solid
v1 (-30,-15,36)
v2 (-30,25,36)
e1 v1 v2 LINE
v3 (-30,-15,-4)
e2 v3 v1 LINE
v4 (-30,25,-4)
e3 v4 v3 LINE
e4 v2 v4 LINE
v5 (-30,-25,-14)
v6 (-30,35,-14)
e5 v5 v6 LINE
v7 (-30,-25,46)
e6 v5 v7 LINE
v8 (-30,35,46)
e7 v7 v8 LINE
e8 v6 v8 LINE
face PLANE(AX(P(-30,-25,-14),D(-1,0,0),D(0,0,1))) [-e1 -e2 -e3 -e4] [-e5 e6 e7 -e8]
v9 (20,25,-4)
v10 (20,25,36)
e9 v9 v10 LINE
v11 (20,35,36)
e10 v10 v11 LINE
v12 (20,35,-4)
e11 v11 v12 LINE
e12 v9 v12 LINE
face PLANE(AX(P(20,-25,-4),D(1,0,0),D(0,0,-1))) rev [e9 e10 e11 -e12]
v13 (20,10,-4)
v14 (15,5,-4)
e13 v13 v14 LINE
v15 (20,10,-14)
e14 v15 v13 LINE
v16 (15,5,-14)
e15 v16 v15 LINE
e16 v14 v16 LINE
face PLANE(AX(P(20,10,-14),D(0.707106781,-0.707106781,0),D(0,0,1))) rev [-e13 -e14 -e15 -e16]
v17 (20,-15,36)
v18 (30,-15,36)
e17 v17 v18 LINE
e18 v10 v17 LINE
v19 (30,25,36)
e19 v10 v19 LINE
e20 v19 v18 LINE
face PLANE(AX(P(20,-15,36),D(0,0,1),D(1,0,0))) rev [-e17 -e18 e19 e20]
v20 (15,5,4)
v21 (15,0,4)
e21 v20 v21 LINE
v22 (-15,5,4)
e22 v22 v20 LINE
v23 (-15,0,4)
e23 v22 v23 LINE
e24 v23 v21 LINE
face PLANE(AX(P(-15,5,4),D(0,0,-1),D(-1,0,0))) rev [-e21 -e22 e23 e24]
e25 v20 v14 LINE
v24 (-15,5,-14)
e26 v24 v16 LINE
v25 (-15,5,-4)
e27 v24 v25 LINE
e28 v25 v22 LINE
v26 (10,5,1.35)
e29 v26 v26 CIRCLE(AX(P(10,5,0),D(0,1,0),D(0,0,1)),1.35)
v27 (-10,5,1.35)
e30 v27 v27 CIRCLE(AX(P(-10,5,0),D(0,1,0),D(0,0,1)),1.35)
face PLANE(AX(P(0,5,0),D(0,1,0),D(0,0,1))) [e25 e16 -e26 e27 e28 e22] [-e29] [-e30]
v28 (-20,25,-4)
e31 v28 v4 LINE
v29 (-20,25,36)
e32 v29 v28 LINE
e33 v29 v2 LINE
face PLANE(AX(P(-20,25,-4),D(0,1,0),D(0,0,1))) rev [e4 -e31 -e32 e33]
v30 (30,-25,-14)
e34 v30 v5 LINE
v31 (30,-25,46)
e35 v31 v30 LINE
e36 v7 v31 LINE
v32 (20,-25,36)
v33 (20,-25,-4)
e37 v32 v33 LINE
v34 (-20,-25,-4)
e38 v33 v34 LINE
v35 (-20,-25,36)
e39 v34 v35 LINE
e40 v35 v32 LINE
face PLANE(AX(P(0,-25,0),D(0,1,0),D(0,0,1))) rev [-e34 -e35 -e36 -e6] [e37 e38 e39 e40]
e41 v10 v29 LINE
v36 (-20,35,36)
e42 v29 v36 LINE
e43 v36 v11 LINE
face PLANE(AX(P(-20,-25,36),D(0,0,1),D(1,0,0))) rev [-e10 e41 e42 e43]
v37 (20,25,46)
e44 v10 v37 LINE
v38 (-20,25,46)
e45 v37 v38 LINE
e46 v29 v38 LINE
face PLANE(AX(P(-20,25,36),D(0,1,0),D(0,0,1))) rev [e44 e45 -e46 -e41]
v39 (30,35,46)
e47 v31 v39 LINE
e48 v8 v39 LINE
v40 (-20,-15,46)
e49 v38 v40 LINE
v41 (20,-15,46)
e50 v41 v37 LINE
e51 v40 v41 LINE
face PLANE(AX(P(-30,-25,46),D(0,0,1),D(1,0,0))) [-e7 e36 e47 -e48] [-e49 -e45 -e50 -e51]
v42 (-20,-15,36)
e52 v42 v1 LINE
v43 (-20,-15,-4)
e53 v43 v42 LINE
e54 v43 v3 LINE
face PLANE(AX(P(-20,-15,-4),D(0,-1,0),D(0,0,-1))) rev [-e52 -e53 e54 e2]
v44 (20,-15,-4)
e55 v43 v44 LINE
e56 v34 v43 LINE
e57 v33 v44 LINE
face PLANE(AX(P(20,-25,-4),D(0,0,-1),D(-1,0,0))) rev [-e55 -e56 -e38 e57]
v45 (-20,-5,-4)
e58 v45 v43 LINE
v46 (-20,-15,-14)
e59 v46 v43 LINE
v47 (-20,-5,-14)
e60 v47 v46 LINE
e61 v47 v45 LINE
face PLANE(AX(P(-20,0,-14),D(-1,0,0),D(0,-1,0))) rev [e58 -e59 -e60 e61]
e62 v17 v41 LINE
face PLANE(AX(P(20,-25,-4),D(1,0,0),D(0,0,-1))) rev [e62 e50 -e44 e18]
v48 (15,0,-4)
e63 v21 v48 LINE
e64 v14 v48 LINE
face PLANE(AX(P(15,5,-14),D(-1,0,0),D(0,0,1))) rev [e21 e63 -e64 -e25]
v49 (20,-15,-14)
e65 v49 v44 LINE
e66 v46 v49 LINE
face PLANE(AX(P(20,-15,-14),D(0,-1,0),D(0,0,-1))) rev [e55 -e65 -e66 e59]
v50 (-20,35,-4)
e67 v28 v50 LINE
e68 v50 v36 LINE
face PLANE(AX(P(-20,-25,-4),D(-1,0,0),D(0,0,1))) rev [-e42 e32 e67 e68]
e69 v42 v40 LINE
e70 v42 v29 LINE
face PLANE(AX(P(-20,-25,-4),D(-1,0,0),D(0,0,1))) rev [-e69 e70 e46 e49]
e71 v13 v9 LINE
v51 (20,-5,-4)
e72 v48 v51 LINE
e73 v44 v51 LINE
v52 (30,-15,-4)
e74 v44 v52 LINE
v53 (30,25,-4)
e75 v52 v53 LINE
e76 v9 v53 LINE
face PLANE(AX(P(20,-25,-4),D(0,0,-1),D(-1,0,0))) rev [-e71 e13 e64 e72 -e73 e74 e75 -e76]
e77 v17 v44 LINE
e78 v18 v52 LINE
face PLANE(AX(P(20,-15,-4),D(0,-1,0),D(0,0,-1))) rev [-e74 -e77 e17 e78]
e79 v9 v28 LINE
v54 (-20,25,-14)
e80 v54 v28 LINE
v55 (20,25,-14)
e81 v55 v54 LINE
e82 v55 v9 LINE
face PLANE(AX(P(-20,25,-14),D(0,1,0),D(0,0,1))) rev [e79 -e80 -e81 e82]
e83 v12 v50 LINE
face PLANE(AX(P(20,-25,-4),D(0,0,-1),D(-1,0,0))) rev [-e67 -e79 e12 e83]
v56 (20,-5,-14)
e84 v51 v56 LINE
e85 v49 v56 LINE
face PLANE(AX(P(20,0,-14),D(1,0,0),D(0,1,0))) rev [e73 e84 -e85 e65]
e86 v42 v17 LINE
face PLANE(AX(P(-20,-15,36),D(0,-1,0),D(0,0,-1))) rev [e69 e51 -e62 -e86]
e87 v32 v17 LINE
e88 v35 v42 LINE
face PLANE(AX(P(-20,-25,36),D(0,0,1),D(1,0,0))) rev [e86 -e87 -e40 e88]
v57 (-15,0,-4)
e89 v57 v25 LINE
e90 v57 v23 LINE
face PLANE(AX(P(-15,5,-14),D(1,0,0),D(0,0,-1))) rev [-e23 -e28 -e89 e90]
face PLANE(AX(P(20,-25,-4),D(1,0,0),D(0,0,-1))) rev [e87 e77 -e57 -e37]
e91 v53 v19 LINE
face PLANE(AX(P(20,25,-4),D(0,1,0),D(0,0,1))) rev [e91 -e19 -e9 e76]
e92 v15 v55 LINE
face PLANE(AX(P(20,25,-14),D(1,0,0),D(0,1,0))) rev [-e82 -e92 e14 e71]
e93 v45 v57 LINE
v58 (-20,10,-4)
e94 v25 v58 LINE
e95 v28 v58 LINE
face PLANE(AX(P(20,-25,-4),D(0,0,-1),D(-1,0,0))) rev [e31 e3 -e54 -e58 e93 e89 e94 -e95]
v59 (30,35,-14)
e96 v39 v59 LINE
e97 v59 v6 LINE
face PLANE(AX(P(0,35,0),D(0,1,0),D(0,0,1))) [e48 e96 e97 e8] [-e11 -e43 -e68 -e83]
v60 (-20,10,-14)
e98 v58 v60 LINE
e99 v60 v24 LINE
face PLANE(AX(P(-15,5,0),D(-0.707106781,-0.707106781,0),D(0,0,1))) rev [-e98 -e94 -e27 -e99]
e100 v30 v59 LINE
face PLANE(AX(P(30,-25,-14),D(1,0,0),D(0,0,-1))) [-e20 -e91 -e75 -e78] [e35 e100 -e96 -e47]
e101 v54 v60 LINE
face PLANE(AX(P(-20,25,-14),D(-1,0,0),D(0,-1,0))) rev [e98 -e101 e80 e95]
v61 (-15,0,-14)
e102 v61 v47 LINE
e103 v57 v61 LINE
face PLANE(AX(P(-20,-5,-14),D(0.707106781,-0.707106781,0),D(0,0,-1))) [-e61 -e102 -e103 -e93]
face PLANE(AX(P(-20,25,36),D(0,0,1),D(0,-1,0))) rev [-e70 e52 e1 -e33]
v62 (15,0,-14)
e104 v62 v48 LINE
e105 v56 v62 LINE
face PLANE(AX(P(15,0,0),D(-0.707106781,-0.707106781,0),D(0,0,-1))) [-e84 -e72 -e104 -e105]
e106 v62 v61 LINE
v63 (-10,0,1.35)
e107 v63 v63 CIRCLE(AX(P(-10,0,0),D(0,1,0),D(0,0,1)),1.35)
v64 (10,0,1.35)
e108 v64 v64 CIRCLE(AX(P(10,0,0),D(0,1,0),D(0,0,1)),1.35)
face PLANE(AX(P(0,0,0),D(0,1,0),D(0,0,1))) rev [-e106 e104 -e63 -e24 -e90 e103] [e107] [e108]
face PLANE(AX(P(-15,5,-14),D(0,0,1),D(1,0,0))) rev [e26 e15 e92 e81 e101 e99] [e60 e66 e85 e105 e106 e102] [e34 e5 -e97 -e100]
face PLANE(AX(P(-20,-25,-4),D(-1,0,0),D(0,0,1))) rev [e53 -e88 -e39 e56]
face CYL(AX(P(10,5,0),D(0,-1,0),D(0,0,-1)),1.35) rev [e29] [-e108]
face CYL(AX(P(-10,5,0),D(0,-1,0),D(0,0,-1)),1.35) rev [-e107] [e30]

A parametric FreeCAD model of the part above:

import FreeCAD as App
import Part
import Sketcher
Q = App.Units.Quantity


def edges_at(feature, points):
    """Names of the edges that pass closest to the given points."""
    edges = feature.Shape.Edges
    near = lambda p: min(range(len(edges)), key=lambda i: edges[i].distToShape(Part.Vertex(*p))[0])
    return sorted({f"Edge{near(p) + 1}" for p in points})

doc = App.newDocument("Part")
params = doc.addObject("Spreadsheet::Sheet", "Params")
for row, (alias, value) in enumerate([
    ("sketch1_diameter", "2.7 mm"),
    ("sketch1_width", "30 mm"),
    ("sketch1_height", "18 mm"),
    ("pad1_length", "5 mm"),
    ("sketch2_width", "60 mm"),
    ("sketch2_width2", "40 mm"),
    ("pad2_length", "30 mm"),
    ("pad2_length2", "30 mm"),
    ("sketch3_width", "40 mm"),
    ("pocket1_length", "10 mm"),
    ("sketch4_width", "40 mm"),
    ("pocket2_length", "10 mm"),
    ("sketch5_width", "40 mm"),
    ("pocket3_length", "10 mm"),
    ("sketch6_width", "40 mm"),
    ("sketch6_height", "20 mm"),
    ("sketch6_height2", "15 mm"),
    ("pocket4_length", "10 mm"),
    ("chamfer_size", "5 mm"),
], start=1):
    params.set(f"A{row}", alias)
    params.set(f"B{row}", "=" + value)
    params.setAlias(f"B{row}", alias)

body = doc.addObject("PartDesign::Body", "Body")

# Sketch on XZ plane
sketch1 = body.newObject("Sketcher::SketchObject", "Sketch")
sketch1.AttachmentSupport = (doc.getObject("XZ_Plane"), [""])
sketch1.MapMode = "FlatFace"
sketch1.addGeometry(Part.LineSegment(App.Vector(-15, -14, 0), App.Vector(-15, 4, 0)), False)
sketch1.addGeometry(Part.LineSegment(App.Vector(-15, 4, 0), App.Vector(15, 4, 0)), False)
sketch1.addGeometry(Part.LineSegment(App.Vector(15, 4, 0), App.Vector(15, -14, 0)), False)
sketch1.addGeometry(Part.LineSegment(App.Vector(15, -14, 0), App.Vector(-15, -14, 0)), False)
sketch1.addGeometry(Part.Circle(App.Vector(-10, 0, 0), App.Vector(0, 0, 1), 1.4), False)
sketch1.addGeometry(Part.Circle(App.Vector(10, 0, 0), App.Vector(0, 0, 1), 1.4), False)
sketch1.addConstraint(Sketcher.Constraint("Coincident", 0, 2, 1, 1))
sketch1.addConstraint(Sketcher.Constraint("Coincident", 1, 2, 2, 1))
sketch1.addConstraint(Sketcher.Constraint("Coincident", 2, 2, 3, 1))
sketch1.addConstraint(Sketcher.Constraint("Coincident", 3, 2, 0, 1))
sketch1.addConstraint(Sketcher.Constraint("Vertical", 0))
sketch1.addConstraint(Sketcher.Constraint("Horizontal", 1))
sketch1.addConstraint(Sketcher.Constraint("Vertical", 2))
sketch1.addConstraint(Sketcher.Constraint("Horizontal", 3))
sketch1.addConstraint(Sketcher.Constraint("Equal", 4, 5))
sketch1.addConstraint(Sketcher.Constraint("Symmetric", 4, 3, 5, 3, -1, 1))
sketch1.addConstraint(Sketcher.Constraint("PointOnObject", 4, 3, -1))
sketch1.addConstraint(Sketcher.Constraint("Diameter", 4, Q("2.7 mm")))
sketch1.addConstraint(Sketcher.Constraint("DistanceX", 1, 1, 1, 2, Q("30 mm")))
sketch1.addConstraint(Sketcher.Constraint("DistanceY", 0, 1, 0, 2, Q("18 mm")))
sketch1.addConstraint(Sketcher.Constraint("DistanceX", 4, 3, -1, 1, Q("10 mm")))
sketch1.addConstraint(Sketcher.Constraint("DistanceX", 0, 2, -1, 1, Q("15 mm")))
sketch1.addConstraint(Sketcher.Constraint("DistanceY", -1, 1, 0, 2, Q("4 mm")))
sketch1.setExpression("Constraints[11]", "Params.sketch1_diameter")
sketch1.setExpression("Constraints[12]", "Params.sketch1_width")
sketch1.setExpression("Constraints[13]", "Params.sketch1_height")
pad1 = body.newObject("PartDesign::Pad", "Pad")
pad1.Profile = sketch1
pad1.setExpression("Length", "Params.pad1_length")
pad1.Reversed = True

# Sketch on XZ plane
sketch2 = body.newObject("Sketcher::SketchObject", "Sketch001")
sketch2.AttachmentSupport = (doc.getObject("XZ_Plane"), [""])
sketch2.MapMode = "FlatFace"
sketch2.AttachmentOffset = App.Placement(App.Vector(0, 0, -5), App.Rotation())
sketch2.addGeometry(Part.LineSegment(App.Vector(-30, -14, 0), App.Vector(-30, 46, 0)), False)
sketch2.addGeometry(Part.LineSegment(App.Vector(-30, 46, 0), App.Vector(30, 46, 0)), False)
sketch2.addGeometry(Part.LineSegment(App.Vector(30, 46, 0), App.Vector(30, -14, 0)), False)
sketch2.addGeometry(Part.LineSegment(App.Vector(30, -14, 0), App.Vector(-30, -14, 0)), False)
sketch2.addGeometry(Part.LineSegment(App.Vector(20, 36, 0), App.Vector(-20, 36, 0)), False)
sketch2.addGeometry(Part.LineSegment(App.Vector(-20, 36, 0), App.Vector(-20, -4, 0)), False)
sketch2.addGeometry(Part.LineSegment(App.Vector(-20, -4, 0), App.Vector(20, -4, 0)), False)
sketch2.addGeometry(Part.LineSegment(App.Vector(20, -4, 0), App.Vector(20, 36, 0)), False)
sketch2.addConstraint(Sketcher.Constraint("Coincident", 0, 2, 1, 1))
sketch2.addConstraint(Sketcher.Constraint("Coincident", 1, 2, 2, 1))
sketch2.addConstraint(Sketcher.Constraint("Coincident", 2, 2, 3, 1))
sketch2.addConstraint(Sketcher.Constraint("Coincident", 3, 2, 0, 1))
sketch2.addConstraint(Sketcher.Constraint("Coincident", 4, 2, 5, 1))
sketch2.addConstraint(Sketcher.Constraint("Coincident", 5, 2, 6, 1))
sketch2.addConstraint(Sketcher.Constraint("Coincident", 6, 2, 7, 1))
sketch2.addConstraint(Sketcher.Constraint("Coincident", 7, 2, 4, 1))
sketch2.addConstraint(Sketcher.Constraint("Vertical", 0))
sketch2.addConstraint(Sketcher.Constraint("Horizontal", 1))
sketch2.addConstraint(Sketcher.Constraint("Vertical", 2))
sketch2.addConstraint(Sketcher.Constraint("Horizontal", 3))
sketch2.addConstraint(Sketcher.Constraint("Horizontal", 4))
sketch2.addConstraint(Sketcher.Constraint("Vertical", 5))
sketch2.addConstraint(Sketcher.Constraint("Horizontal", 6))
sketch2.addConstraint(Sketcher.Constraint("Vertical", 7))
sketch2.addConstraint(Sketcher.Constraint("Equal", 3, 0))
sketch2.addConstraint(Sketcher.Constraint("Equal", 6, 5))
sketch2.addConstraint(Sketcher.Constraint("DistanceX", 1, 1, 1, 2, Q("60 mm")))
sketch2.addConstraint(Sketcher.Constraint("DistanceX", 4, 2, 4, 1, Q("40 mm")))
sketch2.addConstraint(Sketcher.Constraint("DistanceX", 0, 2, -1, 1, Q("30 mm")))
sketch2.addConstraint(Sketcher.Constraint("DistanceY", -1, 1, 0, 2, Q("46 mm")))
sketch2.addConstraint(Sketcher.Constraint("DistanceX", 4, 2, -1, 1, Q("20 mm")))
sketch2.addConstraint(Sketcher.Constraint("DistanceY", -1, 1, 4, 2, Q("36 mm")))
sketch2.setExpression("Constraints[18]", "Params.sketch2_width")
sketch2.setExpression("Constraints[19]", "Params.sketch2_width2")
pad2 = body.newObject("PartDesign::Pad", "Pad001")
pad2.Profile = sketch2
pad2.Type = "TwoLengths"
pad2.setExpression("Length", "Params.pad2_length")
pad2.setExpression("Length2", "Params.pad2_length2")
pad2.Reversed = True

# Sketch on XY plane
sketch3 = body.newObject("Sketcher::SketchObject", "Sketch002")
sketch3.AttachmentSupport = (doc.getObject("XY_Plane"), [""])
sketch3.MapMode = "FlatFace"
sketch3.AttachmentOffset = App.Placement(App.Vector(0, 0, 46), App.Rotation())
sketch3.addGeometry(Part.LineSegment(App.Vector(-20, 25, 0), App.Vector(-20, -15, 0)), False)
sketch3.addGeometry(Part.LineSegment(App.Vector(-20, -15, 0), App.Vector(20, -15, 0)), False)
sketch3.addGeometry(Part.LineSegment(App.Vector(20, -15, 0), App.Vector(20, 25, 0)), False)
sketch3.addGeometry(Part.LineSegment(App.Vector(20, 25, 0), App.Vector(-20, 25, 0)), False)
sketch3.addConstraint(Sketcher.Constraint("Coincident", 0, 2, 1, 1))
sketch3.addConstraint(Sketcher.Constraint("Coincident", 1, 2, 2, 1))
sketch3.addConstraint(Sketcher.Constraint("Coincident", 2, 2, 3, 1))
sketch3.addConstraint(Sketcher.Constraint("Coincident", 3, 2, 0, 1))
sketch3.addConstraint(Sketcher.Constraint("Vertical", 0))
sketch3.addConstraint(Sketcher.Constraint("Horizontal", 1))
sketch3.addConstraint(Sketcher.Constraint("Vertical", 2))
sketch3.addConstraint(Sketcher.Constraint("Horizontal", 3))
sketch3.addConstraint(Sketcher.Constraint("Equal", 3, 0))
sketch3.addConstraint(Sketcher.Constraint("DistanceX", 1, 1, 1, 2, Q("40 mm")))
sketch3.addConstraint(Sketcher.Constraint("DistanceX", 0, 2, -1, 1, Q("20 mm")))
sketch3.addConstraint(Sketcher.Constraint("DistanceY", 0, 2, -1, 1, Q("15 mm")))
sketch3.setExpression("Constraints[9]", "Params.sketch3_width")
pocket1 = body.newObject("PartDesign::Pocket", "Pocket")
pocket1.Profile = sketch3
pocket1.setExpression("Length", "Params.pocket1_length")

# Sketch on YZ plane
sketch4 = body.newObject("Sketcher::SketchObject", "Sketch003")
sketch4.AttachmentSupport = (doc.getObject("YZ_Plane"), [""])
sketch4.MapMode = "FlatFace"
sketch4.AttachmentOffset = App.Placement(App.Vector(0, 0, -30), App.Rotation())
sketch4.addGeometry(Part.LineSegment(App.Vector(25, -4, 0), App.Vector(-15, -4, 0)), False)
sketch4.addGeometry(Part.LineSegment(App.Vector(-15, -4, 0), App.Vector(-15, 36, 0)), False)
sketch4.addGeometry(Part.LineSegment(App.Vector(-15, 36, 0), App.Vector(25, 36, 0)), False)
sketch4.addGeometry(Part.LineSegment(App.Vector(25, 36, 0), App.Vector(25, -4, 0)), False)
sketch4.addConstraint(Sketcher.Constraint("Coincident", 0, 2, 1, 1))
sketch4.addConstraint(Sketcher.Constraint("Coincident", 1, 2, 2, 1))
sketch4.addConstraint(Sketcher.Constraint("Coincident", 2, 2, 3, 1))
sketch4.addConstraint(Sketcher.Constraint("Coincident", 3, 2, 0, 1))
sketch4.addConstraint(Sketcher.Constraint("Horizontal", 0))
sketch4.addConstraint(Sketcher.Constraint("Vertical", 1))
sketch4.addConstraint(Sketcher.Constraint("Horizontal", 2))
sketch4.addConstraint(Sketcher.Constraint("Vertical", 3))
sketch4.addConstraint(Sketcher.Constraint("Equal", 2, 1))
sketch4.addConstraint(Sketcher.Constraint("DistanceX", 0, 2, 0, 1, Q("40 mm")))
sketch4.addConstraint(Sketcher.Constraint("DistanceX", 0, 2, -1, 1, Q("15 mm")))
sketch4.addConstraint(Sketcher.Constraint("DistanceY", 0, 2, -1, 1, Q("4 mm")))
sketch4.setExpression("Constraints[9]", "Params.sketch4_width")
pocket2 = body.newObject("PartDesign::Pocket", "Pocket001")
pocket2.Profile = sketch4
pocket2.setExpression("Length", "Params.pocket2_length")
pocket2.Reversed = True

# Sketch on YZ plane
sketch5 = body.newObject("Sketcher::SketchObject", "Sketch004")
sketch5.AttachmentSupport = (doc.getObject("YZ_Plane"), [""])
sketch5.MapMode = "FlatFace"
sketch5.AttachmentOffset = App.Placement(App.Vector(0, 0, 30), App.Rotation())
sketch5.addGeometry(Part.LineSegment(App.Vector(25, 36, 0), App.Vector(-15, 36, 0)), False)
sketch5.addGeometry(Part.LineSegment(App.Vector(-15, 36, 0), App.Vector(-15, -4, 0)), False)
sketch5.addGeometry(Part.LineSegment(App.Vector(-15, -4, 0), App.Vector(25, -4, 0)), False)
sketch5.addGeometry(Part.LineSegment(App.Vector(25, -4, 0), App.Vector(25, 36, 0)), False)
sketch5.addConstraint(Sketcher.Constraint("Coincident", 0, 2, 1, 1))
sketch5.addConstraint(Sketcher.Constraint("Coincident", 1, 2, 2, 1))
sketch5.addConstraint(Sketcher.Constraint("Coincident", 2, 2, 3, 1))
sketch5.addConstraint(Sketcher.Constraint("Coincident", 3, 2, 0, 1))
sketch5.addConstraint(Sketcher.Constraint("Horizontal", 0))
sketch5.addConstraint(Sketcher.Constraint("Vertical", 1))
sketch5.addConstraint(Sketcher.Constraint("Horizontal", 2))
sketch5.addConstraint(Sketcher.Constraint("Vertical", 3))
sketch5.addConstraint(Sketcher.Constraint("Equal", 2, 1))
sketch5.addConstraint(Sketcher.Constraint("DistanceX", 0, 2, 0, 1, Q("40 mm")))
sketch5.addConstraint(Sketcher.Constraint("DistanceX", 0, 2, -1, 1, Q("15 mm")))
sketch5.addConstraint(Sketcher.Constraint("DistanceY", -1, 1, 0, 2, Q("36 mm")))
sketch5.setExpression("Constraints[9]", "Params.sketch5_width")
pocket3 = body.newObject("PartDesign::Pocket", "Pocket002")
pocket3.Profile = sketch5
pocket3.setExpression("Length", "Params.pocket3_length")

# Sketch on XY plane
sketch6 = body.newObject("Sketcher::SketchObject", "Sketch005")
sketch6.AttachmentSupport = (doc.getObject("XY_Plane"), [""])
sketch6.MapMode = "FlatFace"
sketch6.AttachmentOffset = App.Placement(App.Vector(0, 0, -4), App.Rotation())
sketch6.addGeometry(Part.LineSegment(App.Vector(-20, 25, 0), App.Vector(-20, 5, 0)), False)
sketch6.addGeometry(Part.LineSegment(App.Vector(-20, 5, 0), App.Vector(20, 5, 0)), False)
sketch6.addGeometry(Part.LineSegment(App.Vector(20, 5, 0), App.Vector(20, 25, 0)), False)
sketch6.addGeometry(Part.LineSegment(App.Vector(20, 25, 0), App.Vector(-20, 25, 0)), False)
sketch6.addGeometry(Part.LineSegment(App.Vector(-20, 0, 0), App.Vector(-20, -15, 0)), False)
sketch6.addGeometry(Part.LineSegment(App.Vector(-20, -15, 0), App.Vector(20, -15, 0)), False)
sketch6.addGeometry(Part.LineSegment(App.Vector(20, -15, 0), App.Vector(20, 0, 0)), False)
sketch6.addGeometry(Part.LineSegment(App.Vector(20, 0, 0), App.Vector(-20, 0, 0)), False)
sketch6.addConstraint(Sketcher.Constraint("Coincident", 0, 2, 1, 1))
sketch6.addConstraint(Sketcher.Constraint("Coincident", 1, 2, 2, 1))
sketch6.addConstraint(Sketcher.Constraint("Coincident", 2, 2, 3, 1))
sketch6.addConstraint(Sketcher.Constraint("Coincident", 3, 2, 0, 1))
sketch6.addConstraint(Sketcher.Constraint("Coincident", 4, 2, 5, 1))
sketch6.addConstraint(Sketcher.Constraint("Coincident", 5, 2, 6, 1))
sketch6.addConstraint(Sketcher.Constraint("Coincident", 6, 2, 7, 1))
sketch6.addConstraint(Sketcher.Constraint("Coincident", 7, 2, 4, 1))
sketch6.addConstraint(Sketcher.Constraint("Vertical", 0))
sketch6.addConstraint(Sketcher.Constraint("Horizontal", 1))
sketch6.addConstraint(Sketcher.Constraint("Vertical", 2))
sketch6.addConstraint(Sketcher.Constraint("Horizontal", 3))
sketch6.addConstraint(Sketcher.Constraint("Vertical", 4))
sketch6.addConstraint(Sketcher.Constraint("Horizontal", 5))
sketch6.addConstraint(Sketcher.Constraint("Vertical", 6))
sketch6.addConstraint(Sketcher.Constraint("Horizontal", 7))
sketch6.addConstraint(Sketcher.Constraint("Symmetric", 6, 2, 7, 2, -1, 1))
sketch6.addConstraint(Sketcher.Constraint("Vertical", 3, 2, 4, 2))
sketch6.addConstraint(Sketcher.Constraint("Vertical", 2, 2, 5, 2))
sketch6.addConstraint(Sketcher.Constraint("DistanceX", 1, 1, 1, 2, Q("40 mm")))
sketch6.addConstraint(Sketcher.Constraint("DistanceY", 0, 2, 0, 1, Q("20 mm")))
sketch6.addConstraint(Sketcher.Constraint("DistanceY", 4, 2, 4, 1, Q("15 mm")))
sketch6.addConstraint(Sketcher.Constraint("DistanceY", -1, 1, 0, 2, Q("5 mm")))
sketch6.setExpression("Constraints[19]", "Params.sketch6_width")
sketch6.setExpression("Constraints[20]", "Params.sketch6_height")
sketch6.setExpression("Constraints[21]", "Params.sketch6_height2")
pocket4 = body.newObject("PartDesign::Pocket", "Pocket003")
pocket4.Profile = sketch6
pocket4.setExpression("Length", "Params.pocket4_length")
doc.recompute()

chamfer = body.newObject("PartDesign::Chamfer", "Chamfer")
chamfer.Base = (pocket4, edges_at(pocket4, [
    (20, 5, -9),
    (-20, 5, -9),
    (-20, 0, -9),
    (20, 0, -9),
]))
chamfer.setExpression("Size", "Params.chamfer_size")

doc.recompute()
